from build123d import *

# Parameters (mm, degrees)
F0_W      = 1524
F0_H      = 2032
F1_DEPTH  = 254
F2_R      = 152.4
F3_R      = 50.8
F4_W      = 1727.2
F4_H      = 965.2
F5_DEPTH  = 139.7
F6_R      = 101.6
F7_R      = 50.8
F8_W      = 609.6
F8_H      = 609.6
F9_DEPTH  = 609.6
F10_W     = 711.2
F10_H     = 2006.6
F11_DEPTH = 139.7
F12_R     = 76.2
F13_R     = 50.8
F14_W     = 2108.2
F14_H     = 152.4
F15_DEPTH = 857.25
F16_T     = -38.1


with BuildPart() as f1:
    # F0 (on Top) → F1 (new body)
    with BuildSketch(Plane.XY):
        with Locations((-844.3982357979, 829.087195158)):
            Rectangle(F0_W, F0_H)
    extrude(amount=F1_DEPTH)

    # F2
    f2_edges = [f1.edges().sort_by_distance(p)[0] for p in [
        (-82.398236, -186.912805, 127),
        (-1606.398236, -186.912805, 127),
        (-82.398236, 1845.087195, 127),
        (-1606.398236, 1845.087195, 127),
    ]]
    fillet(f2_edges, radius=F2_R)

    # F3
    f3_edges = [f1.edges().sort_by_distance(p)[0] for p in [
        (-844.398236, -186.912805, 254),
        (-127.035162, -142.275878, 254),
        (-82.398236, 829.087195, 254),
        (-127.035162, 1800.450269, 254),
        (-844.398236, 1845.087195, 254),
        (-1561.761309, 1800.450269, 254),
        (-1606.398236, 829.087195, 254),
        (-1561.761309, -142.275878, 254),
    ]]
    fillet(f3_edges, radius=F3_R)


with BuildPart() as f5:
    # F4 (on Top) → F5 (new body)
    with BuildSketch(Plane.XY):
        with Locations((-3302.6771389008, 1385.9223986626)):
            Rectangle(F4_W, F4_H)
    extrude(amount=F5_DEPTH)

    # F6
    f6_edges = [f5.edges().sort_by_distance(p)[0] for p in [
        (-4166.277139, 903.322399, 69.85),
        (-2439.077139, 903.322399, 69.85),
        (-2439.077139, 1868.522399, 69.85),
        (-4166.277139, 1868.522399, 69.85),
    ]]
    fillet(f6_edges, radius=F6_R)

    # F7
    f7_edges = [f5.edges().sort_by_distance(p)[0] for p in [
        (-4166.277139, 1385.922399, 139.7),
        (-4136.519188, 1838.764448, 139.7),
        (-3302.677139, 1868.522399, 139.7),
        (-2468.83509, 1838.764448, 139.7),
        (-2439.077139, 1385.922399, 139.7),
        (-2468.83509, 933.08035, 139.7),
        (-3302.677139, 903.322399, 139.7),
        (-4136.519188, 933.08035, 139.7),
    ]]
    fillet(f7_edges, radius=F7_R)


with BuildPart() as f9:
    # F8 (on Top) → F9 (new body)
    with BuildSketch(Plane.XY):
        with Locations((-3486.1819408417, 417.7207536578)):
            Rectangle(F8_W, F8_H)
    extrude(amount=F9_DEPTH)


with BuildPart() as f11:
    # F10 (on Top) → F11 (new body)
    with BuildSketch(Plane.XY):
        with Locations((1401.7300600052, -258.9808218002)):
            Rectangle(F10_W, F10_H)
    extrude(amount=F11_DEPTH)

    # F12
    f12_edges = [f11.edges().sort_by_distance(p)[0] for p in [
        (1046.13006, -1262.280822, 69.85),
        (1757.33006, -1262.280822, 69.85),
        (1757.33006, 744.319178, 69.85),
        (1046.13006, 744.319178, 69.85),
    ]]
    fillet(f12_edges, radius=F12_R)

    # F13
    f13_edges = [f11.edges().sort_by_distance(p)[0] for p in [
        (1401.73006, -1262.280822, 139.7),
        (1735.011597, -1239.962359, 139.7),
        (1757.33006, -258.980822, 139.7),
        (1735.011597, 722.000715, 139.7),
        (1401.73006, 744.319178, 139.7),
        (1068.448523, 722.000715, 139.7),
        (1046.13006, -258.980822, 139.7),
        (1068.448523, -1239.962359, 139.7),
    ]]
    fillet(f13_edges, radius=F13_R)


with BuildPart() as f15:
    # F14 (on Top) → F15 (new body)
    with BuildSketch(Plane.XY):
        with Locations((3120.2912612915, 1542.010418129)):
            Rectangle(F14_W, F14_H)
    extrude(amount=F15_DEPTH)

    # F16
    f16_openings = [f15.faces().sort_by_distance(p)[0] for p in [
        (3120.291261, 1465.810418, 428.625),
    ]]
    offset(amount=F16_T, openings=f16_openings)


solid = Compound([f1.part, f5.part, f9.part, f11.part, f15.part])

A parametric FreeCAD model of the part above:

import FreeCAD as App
import Part
import Sketcher
Q = App.Units.Quantity


def edges_at(feature, points):
    """Names of the edges that pass closest to the given points."""
    edges = feature.Shape.Edges
    near = lambda p: min(range(len(edges)), key=lambda i: edges[i].distToShape(Part.Vertex(*p))[0])
    return sorted({f"Edge{near(p) + 1}" for p in points})


def faces_at(feature, points):
    """Names of the faces that lie closest to the given points."""
    faces = feature.Shape.Faces
    near = lambda p: min(range(len(faces)), key=lambda i: faces[i].distToShape(Part.Vertex(*p))[0])
    return sorted({f"Face{near(p) + 1}" for p in points})


def add_polygon(sketch, points):
    """Adds a closed chain of lines whose ends are joined by coincident constraints."""
    first, n = sketch.GeometryCount, len(points)
    for a, b in zip(points, points[1:] + points[:1]):
        sketch.addGeometry(Part.LineSegment(App.Vector(*a, 0), App.Vector(*b, 0)), False)
    for i in range(n):
        sketch.addConstraint(Sketcher.Constraint("Coincident", first + i, 2, first + (i + 1) % n, 1))

doc = App.newDocument("Part")
params = doc.addObject("Spreadsheet::Sheet", "Params")
for row, (alias, value) in enumerate([
    ("sketch1_width", "60 in"),
    ("sketch1_height", "80 in"),
    ("pad1_length", "10 in"),
    ("fillet_radius", "6 in"),
    ("fillet2_radius", "2 in"),
    ("sketch2_width", "68 in"),
    ("sketch2_height", "38 in"),
    ("pad2_length", "5.5 in"),
    ("fillet3_radius", "4 in"),
    ("fillet4_radius", "2 in"),
    ("sketch3_width", "24 in"),
    ("pad3_length", "24 in"),
    ("sketch4_width", "28 in"),
    ("sketch4_height", "79 in"),
    ("pad4_length", "5.5 in"),
    ("fillet5_radius", "3 in"),
    ("fillet6_radius", "2 in"),
    ("sketch5_width", "83 in"),
    ("sketch5_height", "6 in"),
    ("pad5_length", "33.75 in"),
    ("thickness_wall", "1.5 in"),
], start=1):
    params.set(f"A{row}", alias)
    params.set(f"B{row}", "=" + value)
    params.setAlias(f"B{row}", alias)

body = doc.addObject("PartDesign::Body", "Body")

# Sketch on XY plane
sketch1 = doc.addObject("Sketcher::SketchObject", "Sketch")
body.addObject(sketch1)
sketch1.AttachmentSupport = (doc.XY_Plane, [""])
sketch1.MapMode = "FlatFace"
add_polygon(sketch1, [(-1606, 1845), (-1606, -187), (-82, -187), (-82, 1845)])  # lines 0-3
sketch1.addConstraint([
    Sketcher.Constraint("Vertical", 0),
    Sketcher.Constraint("Horizontal", 1),
    Sketcher.Constraint("Vertical", 2),
    Sketcher.Constraint("Horizontal", 3),
    Sketcher.Constraint("DistanceX", 1, 1, 1, 2, Q("60 in")),
    Sketcher.Constraint("DistanceY", 0, 2, 0, 1, Q("80 in")),
    Sketcher.Constraint("DistanceX", 0, 2, -1, 1, 1606.398236),
    Sketcher.Constraint("DistanceY", 0, 2, -1, 1, 186.912805),
])
sketch1.setExpression("Constraints[8]", "Params.sketch1_width")
sketch1.setExpression("Constraints[9]", "Params.sketch1_height")
pad1 = doc.addObject("PartDesign::Pad", "Pad")
body.addObject(pad1)
pad1.Profile = sketch1
pad1.setExpression("Length", "Params.pad1_length")
doc.recompute()

fillet = doc.addObject("PartDesign::Fillet", "Fillet")
body.addObject(fillet)
fillet.Base = (pad1, edges_at(pad1, [
    (-82.398, -186.913, 127),
    (-1606.398, -186.913, 127),
    (-82.398, 1845.087, 127),
    (-1606.398, 1845.087, 127),
]))
fillet.setExpression("Radius", "Params.fillet_radius")
doc.recompute()

fillet2 = doc.addObject("PartDesign::Fillet", "Fillet001")
body.addObject(fillet2)
fillet2.Base = (fillet, edges_at(fillet, [
    (-844.398, -186.913, 254),
    (-127.035, -142.276, 254),
    (-82.398, 829.087, 254),
    (-127.035, 1800.45, 254),
    (-844.398, 1845.087, 254),
    (-1561.761, 1800.45, 254),
    (-1606.398, 829.087, 254),
    (-1561.761, -142.276, 254),
]))
fillet2.setExpression("Radius", "Params.fillet2_radius")
body2 = doc.addObject("PartDesign::Body", "Body001")

# Sketch on XY plane
sketch2 = doc.addObject("Sketcher::SketchObject", "Sketch001")
body2.addObject(sketch2)
sketch2.AttachmentSupport = (doc.getObject("XY_Plane001"), [""])
sketch2.MapMode = "FlatFace"
add_polygon(sketch2, [(-4166, 1869), (-4166, 903), (-2439, 903), (-2439, 1869)])  # lines 0-3
sketch2.addConstraint([
    Sketcher.Constraint("Vertical", 0),
    Sketcher.Constraint("Horizontal", 1),
    Sketcher.Constraint("Vertical", 2),
    Sketcher.Constraint("Horizontal", 3),
    Sketcher.Constraint("DistanceX", 1, 1, 1, 2, Q("68 in")),
    Sketcher.Constraint("DistanceY", 0, 2, 0, 1, Q("38 in")),
    Sketcher.Constraint("DistanceY", -1, 1, 0, 2, 903.322399),
    Sketcher.Constraint("DistanceX", 0, 2, -1, 1, 4166.277139),
])
sketch2.setExpression("Constraints[8]", "Params.sketch2_width")
sketch2.setExpression("Constraints[9]", "Params.sketch2_height")
pad2 = doc.addObject("PartDesign::Pad", "Pad001")
body2.addObject(pad2)
pad2.Profile = sketch2
pad2.setExpression("Length", "Params.pad2_length")
doc.recompute()

fillet3 = doc.addObject("PartDesign::Fillet", "Fillet002")
body2.addObject(fillet3)
fillet3.Base = (pad2, edges_at(pad2, [
    (-4166.277, 903.322, 69.85),
    (-2439.077, 903.322, 69.85),
    (-2439.077, 1868.522, 69.85),
    (-4166.277, 1868.522, 69.85),
]))
fillet3.setExpression("Radius", "Params.fillet3_radius")
doc.recompute()

fillet4 = doc.addObject("PartDesign::Fillet", "Fillet003")
body2.addObject(fillet4)
fillet4.Base = (fillet3, edges_at(fillet3, [
    (-4166.277, 1385.922, 139.7),
    (-4136.519, 1838.764, 139.7),
    (-3302.677, 1868.522, 139.7),
    (-2468.835, 1838.764, 139.7),
    (-2439.077, 1385.922, 139.7),
    (-2468.835, 933.08, 139.7),
    (-3302.677, 903.322, 139.7),
    (-4136.519, 933.08, 139.7),
]))
fillet4.setExpression("Radius", "Params.fillet4_radius")
body3 = doc.addObject("PartDesign::Body", "Body002")

# Sketch on XY plane
sketch3 = doc.addObject("Sketcher::SketchObject", "Sketch002")
body3.addObject(sketch3)
sketch3.AttachmentSupport = (doc.getObject("XY_Plane002"), [""])
sketch3.MapMode = "FlatFace"
add_polygon(sketch3, [(-3791, 723), (-3791, 113), (-3181, 113), (-3181, 723)])  # lines 0-3
sketch3.addConstraint([
    Sketcher.Constraint("Vertical", 0),
    Sketcher.Constraint("Horizontal", 1),
    Sketcher.Constraint("Vertical", 2),
    Sketcher.Constraint("Horizontal", 3),
    Sketcher.Constraint("Equal", 3, 0),
    Sketcher.Constraint("DistanceX", 1, 1, 1, 2, Q("24 in")),
    Sketcher.Constraint("DistanceX", 0, 2, -1, 1, 3790.981941),
    Sketcher.Constraint("DistanceY", -1, 1, 0, 2, 112.920754),
])
sketch3.setExpression("Constraints[9]", "Params.sketch3_width")
pad3 = doc.addObject("PartDesign::Pad", "Pad002")
body3.addObject(pad3)
pad3.Profile = sketch3
pad3.setExpression("Length", "Params.pad3_length")
body4 = doc.addObject("PartDesign::Body", "Body003")

# Sketch on XY plane
sketch4 = doc.addObject("Sketcher::SketchObject", "Sketch003")
body4.addObject(sketch4)
sketch4.AttachmentSupport = (doc.getObject("XY_Plane003"), [""])
sketch4.MapMode = "FlatFace"
add_polygon(sketch4, [(1046, 744), (1046, -1262), (1757, -1262), (1757, 744)])  # lines 0-3
sketch4.addConstraint([
    Sketcher.Constraint("Vertical", 0),
    Sketcher.Constraint("Horizontal", 1),
    Sketcher.Constraint("Vertical", 2),
    Sketcher.Constraint("Horizontal", 3),
    Sketcher.Constraint("DistanceX", 1, 1, 1, 2, Q("28 in")),
    Sketcher.Constraint("DistanceY", 0, 2, 0, 1, Q("79 in")),
    Sketcher.Constraint("DistanceX", -1, 1, 0, 2, 1046.13006),
    Sketcher.Constraint("DistanceY", 0, 2, -1, 1, 1262.280822),
])
sketch4.setExpression("Constraints[8]", "Params.sketch4_width")
sketch4.setExpression("Constraints[9]", "Params.sketch4_height")
pad4 = doc.addObject("PartDesign::Pad", "Pad003")
body4.addObject(pad4)
pad4.Profile = sketch4
pad4.setExpression("Length", "Params.pad4_length")
doc.recompute()

fillet5 = doc.addObject("PartDesign::Fillet", "Fillet004")
body4.addObject(fillet5)
fillet5.Base = (pad4, edges_at(pad4, [
    (1046.13, -1262.281, 69.85),
    (1757.33, -1262.281, 69.85),
    (1757.33, 744.319, 69.85),
    (1046.13, 744.319, 69.85),
]))
fillet5.setExpression("Radius", "Params.fillet5_radius")
doc.recompute()

fillet6 = doc.addObject("PartDesign::Fillet", "Fillet005")
body4.addObject(fillet6)
fillet6.Base = (fillet5, edges_at(fillet5, [
    (1401.73, -1262.281, 139.7),
    (1735.012, -1239.962, 139.7),
    (1757.33, -258.981, 139.7),
    (1735.012, 722.001, 139.7),
    (1401.73, 744.319, 139.7),
    (1068.449, 722.001, 139.7),
    (1046.13, -258.981, 139.7),
    (1068.449, -1239.962, 139.7),
]))
fillet6.setExpression("Radius", "Params.fillet6_radius")
body5 = doc.addObject("PartDesign::Body", "Body004")

# Sketch on XY plane
sketch5 = doc.addObject("Sketcher::SketchObject", "Sketch004")
body5.addObject(sketch5)
sketch5.AttachmentSupport = (doc.getObject("XY_Plane004"), [""])
sketch5.MapMode = "FlatFace"
add_polygon(sketch5, [(2066, 1618), (2066, 1466), (4174, 1466), (4174, 1618)])  # lines 0-3
sketch5.addConstraint([
    Sketcher.Constraint("Vertical", 0),
    Sketcher.Constraint("Horizontal", 1),
    Sketcher.Constraint("Vertical", 2),
    Sketcher.Constraint("Horizontal", 3),
    Sketcher.Constraint("DistanceX", 1, 1, 1, 2, Q("83 in")),
    Sketcher.Constraint("DistanceY", 0, 2, 0, 1, Q("6 in")),
    Sketcher.Constraint("DistanceX", -1, 1, 0, 2, 2066.191261),
    Sketcher.Constraint("DistanceY", -1, 1, 0, 2, 1465.810418),
])
sketch5.setExpression("Constraints[8]", "Params.sketch5_width")
sketch5.setExpression("Constraints[9]", "Params.sketch5_height")
pad5 = doc.addObject("PartDesign::Pad", "Pad004")
body5.addObject(pad5)
pad5.Profile = sketch5
pad5.setExpression("Length", "Params.pad5_length")
doc.recompute()

thickness = doc.addObject("PartDesign::Thickness", "Thickness")
body5.addObject(thickness)
thickness.Base = (pad5, faces_at(pad5, [(3120.291, 1465.81, 428.625)]))
thickness.setExpression("Value", "Params.thickness_wall")
thickness.Reversed = True
thickness.Join = "Arc"

doc.recompute()
